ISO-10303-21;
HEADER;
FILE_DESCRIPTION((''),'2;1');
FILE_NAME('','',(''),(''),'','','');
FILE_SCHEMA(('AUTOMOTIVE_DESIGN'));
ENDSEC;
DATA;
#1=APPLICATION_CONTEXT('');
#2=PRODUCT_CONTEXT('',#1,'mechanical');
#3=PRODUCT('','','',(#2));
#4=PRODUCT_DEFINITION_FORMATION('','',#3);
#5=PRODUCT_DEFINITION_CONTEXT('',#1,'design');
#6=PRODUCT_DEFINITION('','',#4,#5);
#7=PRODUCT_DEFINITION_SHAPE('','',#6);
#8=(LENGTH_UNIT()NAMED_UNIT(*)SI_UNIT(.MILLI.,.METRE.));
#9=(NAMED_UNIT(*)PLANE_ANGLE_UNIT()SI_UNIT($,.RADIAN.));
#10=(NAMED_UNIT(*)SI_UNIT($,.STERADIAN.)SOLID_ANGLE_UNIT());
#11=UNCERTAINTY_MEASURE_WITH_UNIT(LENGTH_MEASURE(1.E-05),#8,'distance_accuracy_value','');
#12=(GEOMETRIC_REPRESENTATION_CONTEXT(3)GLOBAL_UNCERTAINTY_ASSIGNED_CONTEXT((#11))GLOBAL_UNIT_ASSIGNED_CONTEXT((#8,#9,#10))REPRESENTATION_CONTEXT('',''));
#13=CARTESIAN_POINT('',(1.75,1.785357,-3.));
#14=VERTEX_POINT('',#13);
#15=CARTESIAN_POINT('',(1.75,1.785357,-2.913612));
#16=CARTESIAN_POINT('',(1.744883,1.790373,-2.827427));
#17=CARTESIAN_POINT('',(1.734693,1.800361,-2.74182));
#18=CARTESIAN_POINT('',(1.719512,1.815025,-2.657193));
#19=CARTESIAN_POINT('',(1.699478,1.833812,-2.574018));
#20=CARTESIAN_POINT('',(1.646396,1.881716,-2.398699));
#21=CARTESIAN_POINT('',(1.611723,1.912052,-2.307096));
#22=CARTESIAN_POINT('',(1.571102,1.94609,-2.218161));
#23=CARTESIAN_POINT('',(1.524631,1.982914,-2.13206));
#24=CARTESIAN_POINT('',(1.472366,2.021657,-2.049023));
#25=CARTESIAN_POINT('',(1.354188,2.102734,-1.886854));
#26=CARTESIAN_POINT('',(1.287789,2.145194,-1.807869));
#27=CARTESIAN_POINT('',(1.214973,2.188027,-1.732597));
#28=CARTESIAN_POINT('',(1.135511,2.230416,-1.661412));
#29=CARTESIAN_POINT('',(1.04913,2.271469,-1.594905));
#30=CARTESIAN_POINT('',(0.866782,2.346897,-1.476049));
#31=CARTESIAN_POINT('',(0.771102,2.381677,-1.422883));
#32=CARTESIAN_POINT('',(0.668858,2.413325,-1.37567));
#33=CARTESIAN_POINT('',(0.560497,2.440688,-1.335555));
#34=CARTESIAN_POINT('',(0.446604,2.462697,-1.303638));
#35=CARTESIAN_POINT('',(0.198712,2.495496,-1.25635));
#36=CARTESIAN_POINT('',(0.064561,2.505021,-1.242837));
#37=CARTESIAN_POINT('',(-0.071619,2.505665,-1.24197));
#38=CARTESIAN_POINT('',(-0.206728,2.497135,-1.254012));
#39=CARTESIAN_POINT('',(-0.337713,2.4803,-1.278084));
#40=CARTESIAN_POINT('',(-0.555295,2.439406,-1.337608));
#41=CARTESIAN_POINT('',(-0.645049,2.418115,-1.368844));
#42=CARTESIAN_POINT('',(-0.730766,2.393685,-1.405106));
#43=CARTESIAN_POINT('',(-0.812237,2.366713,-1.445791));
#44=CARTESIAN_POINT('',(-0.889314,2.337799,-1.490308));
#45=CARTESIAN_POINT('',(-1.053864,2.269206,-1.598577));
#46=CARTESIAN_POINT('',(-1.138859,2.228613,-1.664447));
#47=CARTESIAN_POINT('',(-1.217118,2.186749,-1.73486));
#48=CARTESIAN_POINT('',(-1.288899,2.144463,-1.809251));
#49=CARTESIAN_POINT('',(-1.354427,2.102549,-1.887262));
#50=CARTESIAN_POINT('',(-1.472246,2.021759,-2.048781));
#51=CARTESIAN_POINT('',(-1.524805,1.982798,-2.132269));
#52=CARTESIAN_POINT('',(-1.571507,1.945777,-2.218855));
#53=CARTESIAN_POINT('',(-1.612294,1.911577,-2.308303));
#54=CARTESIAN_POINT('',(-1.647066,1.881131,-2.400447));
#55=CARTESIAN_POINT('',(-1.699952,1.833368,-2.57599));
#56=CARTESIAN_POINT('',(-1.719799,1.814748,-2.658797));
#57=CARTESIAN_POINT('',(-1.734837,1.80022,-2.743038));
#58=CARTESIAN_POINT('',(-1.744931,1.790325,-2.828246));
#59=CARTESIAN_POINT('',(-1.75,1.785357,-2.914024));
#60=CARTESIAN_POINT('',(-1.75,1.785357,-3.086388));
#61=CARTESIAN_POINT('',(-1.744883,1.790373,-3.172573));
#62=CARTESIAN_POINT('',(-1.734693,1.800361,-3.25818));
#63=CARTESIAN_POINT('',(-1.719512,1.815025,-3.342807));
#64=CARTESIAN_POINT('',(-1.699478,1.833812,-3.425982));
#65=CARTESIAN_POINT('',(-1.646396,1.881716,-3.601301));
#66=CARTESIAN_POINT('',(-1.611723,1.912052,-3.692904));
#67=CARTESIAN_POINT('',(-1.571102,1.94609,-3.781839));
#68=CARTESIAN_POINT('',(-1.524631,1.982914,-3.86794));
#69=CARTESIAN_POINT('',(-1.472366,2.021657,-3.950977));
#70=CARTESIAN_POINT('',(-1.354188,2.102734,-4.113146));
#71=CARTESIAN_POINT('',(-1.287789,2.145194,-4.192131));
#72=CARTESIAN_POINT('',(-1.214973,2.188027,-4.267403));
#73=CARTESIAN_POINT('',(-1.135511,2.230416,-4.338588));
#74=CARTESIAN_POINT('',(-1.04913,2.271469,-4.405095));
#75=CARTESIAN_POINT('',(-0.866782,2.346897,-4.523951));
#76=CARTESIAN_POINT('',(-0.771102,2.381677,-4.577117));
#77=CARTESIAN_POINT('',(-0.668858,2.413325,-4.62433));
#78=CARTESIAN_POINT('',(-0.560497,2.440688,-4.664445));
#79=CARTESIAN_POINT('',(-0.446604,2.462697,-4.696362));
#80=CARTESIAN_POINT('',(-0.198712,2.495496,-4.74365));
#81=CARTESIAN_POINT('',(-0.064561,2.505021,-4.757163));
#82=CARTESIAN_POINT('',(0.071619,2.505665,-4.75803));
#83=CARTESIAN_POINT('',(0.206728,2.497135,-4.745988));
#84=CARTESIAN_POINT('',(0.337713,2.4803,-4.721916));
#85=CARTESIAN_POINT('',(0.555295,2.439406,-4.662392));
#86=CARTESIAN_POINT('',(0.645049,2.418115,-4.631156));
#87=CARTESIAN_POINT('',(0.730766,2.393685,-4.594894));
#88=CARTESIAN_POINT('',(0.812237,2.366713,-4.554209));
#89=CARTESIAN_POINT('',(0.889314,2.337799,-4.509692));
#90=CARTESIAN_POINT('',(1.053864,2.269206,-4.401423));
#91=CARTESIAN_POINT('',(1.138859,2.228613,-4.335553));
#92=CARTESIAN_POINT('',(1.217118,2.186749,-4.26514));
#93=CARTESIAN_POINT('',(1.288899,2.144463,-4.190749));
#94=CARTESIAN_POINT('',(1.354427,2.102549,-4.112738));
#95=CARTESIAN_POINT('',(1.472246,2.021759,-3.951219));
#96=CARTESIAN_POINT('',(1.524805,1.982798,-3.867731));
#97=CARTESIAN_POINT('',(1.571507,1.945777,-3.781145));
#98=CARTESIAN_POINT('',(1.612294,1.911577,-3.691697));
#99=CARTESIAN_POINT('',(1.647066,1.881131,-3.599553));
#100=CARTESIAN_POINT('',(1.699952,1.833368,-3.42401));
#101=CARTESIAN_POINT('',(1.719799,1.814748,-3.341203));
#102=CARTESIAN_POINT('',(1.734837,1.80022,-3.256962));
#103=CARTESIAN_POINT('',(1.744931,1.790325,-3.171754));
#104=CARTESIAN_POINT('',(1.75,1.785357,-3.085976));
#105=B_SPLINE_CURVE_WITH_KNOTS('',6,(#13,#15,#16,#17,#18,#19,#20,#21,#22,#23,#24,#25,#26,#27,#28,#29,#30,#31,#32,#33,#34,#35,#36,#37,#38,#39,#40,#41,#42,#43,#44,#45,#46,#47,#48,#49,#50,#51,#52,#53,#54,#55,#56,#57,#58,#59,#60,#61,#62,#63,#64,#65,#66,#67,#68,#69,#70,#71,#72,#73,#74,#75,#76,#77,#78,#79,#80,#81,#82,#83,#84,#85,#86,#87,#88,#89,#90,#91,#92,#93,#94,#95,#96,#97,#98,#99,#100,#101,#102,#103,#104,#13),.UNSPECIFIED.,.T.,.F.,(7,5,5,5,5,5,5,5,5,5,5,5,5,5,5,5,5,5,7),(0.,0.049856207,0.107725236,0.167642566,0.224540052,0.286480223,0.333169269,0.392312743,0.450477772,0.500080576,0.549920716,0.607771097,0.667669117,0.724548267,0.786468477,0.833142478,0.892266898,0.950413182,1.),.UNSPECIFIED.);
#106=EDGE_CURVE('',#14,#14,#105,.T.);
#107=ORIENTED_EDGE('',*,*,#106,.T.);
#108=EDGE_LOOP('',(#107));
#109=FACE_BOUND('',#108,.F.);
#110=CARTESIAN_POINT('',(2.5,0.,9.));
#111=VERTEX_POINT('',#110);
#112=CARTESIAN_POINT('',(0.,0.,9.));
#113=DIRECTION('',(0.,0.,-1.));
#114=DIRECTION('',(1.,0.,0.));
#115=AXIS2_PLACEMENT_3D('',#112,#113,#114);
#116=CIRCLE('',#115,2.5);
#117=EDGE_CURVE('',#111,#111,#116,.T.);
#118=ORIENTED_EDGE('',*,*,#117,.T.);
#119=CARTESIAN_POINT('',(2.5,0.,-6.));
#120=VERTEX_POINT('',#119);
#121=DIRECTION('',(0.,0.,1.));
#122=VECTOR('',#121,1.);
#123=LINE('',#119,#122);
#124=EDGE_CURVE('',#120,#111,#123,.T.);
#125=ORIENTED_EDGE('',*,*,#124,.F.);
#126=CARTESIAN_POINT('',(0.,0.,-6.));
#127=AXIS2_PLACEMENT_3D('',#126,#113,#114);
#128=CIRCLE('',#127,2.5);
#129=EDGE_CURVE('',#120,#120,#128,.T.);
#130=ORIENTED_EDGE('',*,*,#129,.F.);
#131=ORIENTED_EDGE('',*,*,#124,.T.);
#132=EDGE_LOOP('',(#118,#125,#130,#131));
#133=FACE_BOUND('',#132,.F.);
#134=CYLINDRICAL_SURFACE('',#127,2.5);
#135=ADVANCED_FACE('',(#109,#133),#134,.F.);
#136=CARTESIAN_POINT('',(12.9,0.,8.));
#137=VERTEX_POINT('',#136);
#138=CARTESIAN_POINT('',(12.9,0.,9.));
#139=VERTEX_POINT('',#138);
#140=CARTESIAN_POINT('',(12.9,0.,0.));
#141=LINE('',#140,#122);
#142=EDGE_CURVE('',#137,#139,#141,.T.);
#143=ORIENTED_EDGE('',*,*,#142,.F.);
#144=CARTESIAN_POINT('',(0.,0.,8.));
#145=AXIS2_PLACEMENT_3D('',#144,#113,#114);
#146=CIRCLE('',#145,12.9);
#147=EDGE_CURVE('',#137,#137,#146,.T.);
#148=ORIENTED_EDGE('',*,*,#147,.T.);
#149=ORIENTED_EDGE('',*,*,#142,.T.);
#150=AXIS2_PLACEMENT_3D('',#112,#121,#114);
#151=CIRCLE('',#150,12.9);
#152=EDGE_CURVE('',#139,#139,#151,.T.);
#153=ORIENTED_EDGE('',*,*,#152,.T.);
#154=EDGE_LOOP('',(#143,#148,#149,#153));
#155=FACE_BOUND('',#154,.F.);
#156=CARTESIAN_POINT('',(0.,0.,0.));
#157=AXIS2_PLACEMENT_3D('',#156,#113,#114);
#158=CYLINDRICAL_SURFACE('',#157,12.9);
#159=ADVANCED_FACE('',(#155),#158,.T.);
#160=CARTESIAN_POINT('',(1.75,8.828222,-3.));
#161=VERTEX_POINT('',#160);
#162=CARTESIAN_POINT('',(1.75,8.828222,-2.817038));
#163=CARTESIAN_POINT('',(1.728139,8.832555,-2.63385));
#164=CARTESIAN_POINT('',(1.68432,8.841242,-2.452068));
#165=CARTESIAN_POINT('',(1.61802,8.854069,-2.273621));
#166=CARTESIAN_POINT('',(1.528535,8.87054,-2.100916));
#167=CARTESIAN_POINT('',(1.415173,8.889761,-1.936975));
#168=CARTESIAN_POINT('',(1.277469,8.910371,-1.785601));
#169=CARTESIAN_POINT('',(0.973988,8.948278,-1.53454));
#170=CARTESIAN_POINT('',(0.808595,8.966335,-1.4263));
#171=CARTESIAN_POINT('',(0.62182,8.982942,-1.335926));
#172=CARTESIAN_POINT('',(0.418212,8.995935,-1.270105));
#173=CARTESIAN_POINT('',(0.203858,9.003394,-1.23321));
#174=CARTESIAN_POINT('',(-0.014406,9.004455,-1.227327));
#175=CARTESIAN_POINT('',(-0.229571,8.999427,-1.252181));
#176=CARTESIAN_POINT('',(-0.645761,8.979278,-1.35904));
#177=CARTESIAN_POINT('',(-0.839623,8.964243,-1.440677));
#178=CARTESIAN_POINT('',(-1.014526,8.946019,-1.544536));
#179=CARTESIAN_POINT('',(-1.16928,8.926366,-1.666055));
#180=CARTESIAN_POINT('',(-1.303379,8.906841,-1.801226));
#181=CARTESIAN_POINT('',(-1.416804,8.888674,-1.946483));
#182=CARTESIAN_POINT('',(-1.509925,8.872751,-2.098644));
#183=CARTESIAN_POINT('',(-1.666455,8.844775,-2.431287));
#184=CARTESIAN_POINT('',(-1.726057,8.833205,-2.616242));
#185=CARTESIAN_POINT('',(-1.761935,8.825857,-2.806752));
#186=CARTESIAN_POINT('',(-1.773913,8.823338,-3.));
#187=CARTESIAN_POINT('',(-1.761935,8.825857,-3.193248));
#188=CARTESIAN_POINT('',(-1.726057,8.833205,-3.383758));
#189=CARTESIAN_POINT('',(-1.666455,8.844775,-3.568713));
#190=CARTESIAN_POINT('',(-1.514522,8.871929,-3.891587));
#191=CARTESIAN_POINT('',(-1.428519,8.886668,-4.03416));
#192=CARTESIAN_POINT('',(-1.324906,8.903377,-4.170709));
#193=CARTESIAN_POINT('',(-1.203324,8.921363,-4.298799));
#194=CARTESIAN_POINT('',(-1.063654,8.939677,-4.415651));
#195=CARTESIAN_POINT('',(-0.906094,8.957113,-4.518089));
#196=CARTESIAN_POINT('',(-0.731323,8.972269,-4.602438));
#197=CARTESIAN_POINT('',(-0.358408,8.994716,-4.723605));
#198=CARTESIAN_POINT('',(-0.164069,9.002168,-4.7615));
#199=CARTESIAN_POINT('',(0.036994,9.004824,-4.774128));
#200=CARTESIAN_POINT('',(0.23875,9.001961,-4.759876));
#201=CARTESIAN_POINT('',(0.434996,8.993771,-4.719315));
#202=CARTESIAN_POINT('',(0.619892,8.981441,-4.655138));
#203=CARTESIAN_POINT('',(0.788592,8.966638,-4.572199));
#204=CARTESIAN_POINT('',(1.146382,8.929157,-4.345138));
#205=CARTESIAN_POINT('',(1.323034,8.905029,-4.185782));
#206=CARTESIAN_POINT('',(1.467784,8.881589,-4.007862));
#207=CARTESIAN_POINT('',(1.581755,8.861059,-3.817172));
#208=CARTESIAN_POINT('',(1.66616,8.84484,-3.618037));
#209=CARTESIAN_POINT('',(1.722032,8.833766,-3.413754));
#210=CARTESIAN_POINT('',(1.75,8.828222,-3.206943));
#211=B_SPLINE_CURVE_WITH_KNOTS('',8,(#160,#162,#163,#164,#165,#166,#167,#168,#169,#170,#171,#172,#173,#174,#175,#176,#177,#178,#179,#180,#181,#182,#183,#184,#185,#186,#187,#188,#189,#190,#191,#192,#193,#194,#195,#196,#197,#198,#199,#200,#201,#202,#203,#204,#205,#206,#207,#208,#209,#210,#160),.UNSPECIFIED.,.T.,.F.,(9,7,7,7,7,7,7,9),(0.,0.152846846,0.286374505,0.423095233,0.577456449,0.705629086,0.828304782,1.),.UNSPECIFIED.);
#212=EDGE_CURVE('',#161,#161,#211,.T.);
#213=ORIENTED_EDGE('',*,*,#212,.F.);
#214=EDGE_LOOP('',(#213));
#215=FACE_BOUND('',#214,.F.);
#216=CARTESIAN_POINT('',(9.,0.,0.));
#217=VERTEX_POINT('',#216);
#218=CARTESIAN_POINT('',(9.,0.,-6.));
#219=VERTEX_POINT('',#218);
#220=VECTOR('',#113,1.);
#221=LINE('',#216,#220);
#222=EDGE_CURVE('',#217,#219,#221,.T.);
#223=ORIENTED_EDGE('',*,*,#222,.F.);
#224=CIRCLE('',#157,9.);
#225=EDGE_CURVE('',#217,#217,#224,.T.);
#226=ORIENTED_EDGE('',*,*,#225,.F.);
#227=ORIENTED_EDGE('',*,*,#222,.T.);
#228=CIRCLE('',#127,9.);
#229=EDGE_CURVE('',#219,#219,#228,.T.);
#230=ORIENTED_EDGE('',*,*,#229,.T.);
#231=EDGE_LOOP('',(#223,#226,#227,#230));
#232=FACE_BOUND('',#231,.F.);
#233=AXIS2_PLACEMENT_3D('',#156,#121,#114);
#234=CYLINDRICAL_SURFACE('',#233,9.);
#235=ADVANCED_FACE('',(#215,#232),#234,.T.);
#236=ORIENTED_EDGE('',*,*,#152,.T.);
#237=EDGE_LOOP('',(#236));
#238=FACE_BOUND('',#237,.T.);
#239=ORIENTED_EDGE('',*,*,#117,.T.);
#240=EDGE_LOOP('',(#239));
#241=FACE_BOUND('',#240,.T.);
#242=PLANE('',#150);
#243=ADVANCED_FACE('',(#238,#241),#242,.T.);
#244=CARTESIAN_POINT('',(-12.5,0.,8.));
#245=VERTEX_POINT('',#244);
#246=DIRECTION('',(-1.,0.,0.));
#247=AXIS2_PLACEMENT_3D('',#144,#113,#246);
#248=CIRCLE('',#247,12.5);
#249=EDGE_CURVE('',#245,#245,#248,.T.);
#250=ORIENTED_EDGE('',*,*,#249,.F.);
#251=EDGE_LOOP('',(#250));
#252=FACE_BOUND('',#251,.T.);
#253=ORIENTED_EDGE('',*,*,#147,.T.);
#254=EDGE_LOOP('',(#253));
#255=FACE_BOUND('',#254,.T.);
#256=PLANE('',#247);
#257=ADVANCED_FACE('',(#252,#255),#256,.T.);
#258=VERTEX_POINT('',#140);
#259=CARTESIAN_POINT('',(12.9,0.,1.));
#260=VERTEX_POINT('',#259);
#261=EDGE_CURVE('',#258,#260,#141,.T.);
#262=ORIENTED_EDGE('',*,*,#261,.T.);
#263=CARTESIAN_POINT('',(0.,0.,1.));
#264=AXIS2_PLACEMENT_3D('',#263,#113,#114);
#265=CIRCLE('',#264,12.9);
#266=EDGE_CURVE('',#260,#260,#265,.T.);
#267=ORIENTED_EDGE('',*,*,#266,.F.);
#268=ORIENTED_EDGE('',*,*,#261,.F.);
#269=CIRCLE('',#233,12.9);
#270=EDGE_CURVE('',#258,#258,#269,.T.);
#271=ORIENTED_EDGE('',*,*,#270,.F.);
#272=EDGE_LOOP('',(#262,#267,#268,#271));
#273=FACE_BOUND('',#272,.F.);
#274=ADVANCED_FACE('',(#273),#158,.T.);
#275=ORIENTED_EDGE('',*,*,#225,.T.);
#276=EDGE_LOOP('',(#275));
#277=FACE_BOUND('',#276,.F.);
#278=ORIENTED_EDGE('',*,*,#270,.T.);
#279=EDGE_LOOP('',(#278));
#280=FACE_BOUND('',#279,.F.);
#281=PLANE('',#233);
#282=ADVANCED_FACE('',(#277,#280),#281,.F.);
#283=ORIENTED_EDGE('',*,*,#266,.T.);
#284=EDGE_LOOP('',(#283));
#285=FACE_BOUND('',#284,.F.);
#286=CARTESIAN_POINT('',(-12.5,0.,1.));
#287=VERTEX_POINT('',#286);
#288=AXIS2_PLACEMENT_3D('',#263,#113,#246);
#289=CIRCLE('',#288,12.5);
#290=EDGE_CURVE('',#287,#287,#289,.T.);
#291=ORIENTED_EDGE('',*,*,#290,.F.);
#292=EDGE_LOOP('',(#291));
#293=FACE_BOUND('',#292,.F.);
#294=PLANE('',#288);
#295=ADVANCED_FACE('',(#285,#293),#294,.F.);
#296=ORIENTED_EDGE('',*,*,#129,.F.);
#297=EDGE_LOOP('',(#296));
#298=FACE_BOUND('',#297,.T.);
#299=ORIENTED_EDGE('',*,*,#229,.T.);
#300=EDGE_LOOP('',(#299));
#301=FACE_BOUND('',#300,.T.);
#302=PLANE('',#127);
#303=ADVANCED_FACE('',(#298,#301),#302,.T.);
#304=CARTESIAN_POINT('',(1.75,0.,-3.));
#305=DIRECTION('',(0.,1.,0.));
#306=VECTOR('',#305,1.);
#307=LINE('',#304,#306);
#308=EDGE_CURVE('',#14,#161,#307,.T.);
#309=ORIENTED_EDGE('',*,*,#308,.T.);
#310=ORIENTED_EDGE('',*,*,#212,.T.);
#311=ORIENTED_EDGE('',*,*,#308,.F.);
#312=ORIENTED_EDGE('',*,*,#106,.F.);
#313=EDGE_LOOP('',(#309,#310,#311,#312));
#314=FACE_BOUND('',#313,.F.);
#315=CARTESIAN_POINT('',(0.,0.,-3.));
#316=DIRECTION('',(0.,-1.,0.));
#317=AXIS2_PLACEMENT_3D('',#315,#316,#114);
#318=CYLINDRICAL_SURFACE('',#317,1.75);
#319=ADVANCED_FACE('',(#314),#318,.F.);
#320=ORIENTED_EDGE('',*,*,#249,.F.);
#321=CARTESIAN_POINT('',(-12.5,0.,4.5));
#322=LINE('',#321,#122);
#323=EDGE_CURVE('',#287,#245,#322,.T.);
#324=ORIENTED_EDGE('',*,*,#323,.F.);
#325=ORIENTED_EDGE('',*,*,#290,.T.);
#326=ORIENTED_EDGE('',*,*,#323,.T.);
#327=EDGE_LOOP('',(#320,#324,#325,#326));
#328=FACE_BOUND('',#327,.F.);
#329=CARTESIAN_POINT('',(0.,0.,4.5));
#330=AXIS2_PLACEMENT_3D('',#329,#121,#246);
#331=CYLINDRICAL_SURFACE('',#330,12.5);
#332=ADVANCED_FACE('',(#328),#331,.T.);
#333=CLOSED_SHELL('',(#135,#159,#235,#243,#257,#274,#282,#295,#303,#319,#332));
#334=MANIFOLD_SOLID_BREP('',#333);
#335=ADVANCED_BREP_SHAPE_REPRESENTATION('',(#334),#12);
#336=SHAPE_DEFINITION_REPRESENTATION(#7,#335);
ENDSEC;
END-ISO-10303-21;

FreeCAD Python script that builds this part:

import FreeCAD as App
import Part
import Sketcher


def add_polygon(sketch, points):
    """Adds a closed chain of lines whose ends are joined by coincident constraints."""
    first, n = sketch.GeometryCount, len(points)
    for a, b in zip(points, points[1:] + points[:1]):
        sketch.addGeometry(Part.LineSegment(App.Vector(*a, 0), App.Vector(*b, 0)), False)
    for i in range(n):
        sketch.addConstraint(Sketcher.Constraint("Coincident", first + i, 2, first + (i + 1) % n, 1))

doc = App.newDocument("Part")
body = doc.addObject("PartDesign::Body", "Body")

# Sketch on XY plane
sketch1 = body.newObject("Sketcher::SketchObject", "Sketch")
sketch1.AttachmentSupport = (doc.getObject("XY_Plane"), [""])
sketch1.MapMode = "FlatFace"
sketch1.addGeometry(Part.Circle(App.Vector(0, 0, 0), App.Vector(0, 0, 1), 13), False)
sketch1.addConstraint(Sketcher.Constraint("Coincident", 0, 3, -1, 1))
sketch1.addConstraint(Sketcher.Constraint("Diameter", 0, 25.8))
pad1 = body.newObject("PartDesign::Pad", "Pad")
pad1.Profile = sketch1
pad1.Length = 9

# Sketch on XY plane
sketch2 = body.newObject("Sketcher::SketchObject", "Sketch001")
sketch2.AttachmentSupport = (doc.getObject("XY_Plane"), [""])
sketch2.MapMode = "FlatFace"
sketch2.addGeometry(Part.Circle(App.Vector(0, 0, 0), App.Vector(0, 0, 1), 9), False)
sketch2.addConstraint(Sketcher.Constraint("Coincident", 0, 3, -1, 1))
sketch2.addConstraint(Sketcher.Constraint("Diameter", 0, 18.0))
pad2 = body.newObject("PartDesign::Pad", "Pad001")
pad2.Profile = sketch2
pad2.Length = 6
pad2.Reversed = True

# Sketch on XY plane
sketch3 = body.newObject("Sketcher::SketchObject", "Sketch002")
sketch3.AttachmentSupport = (doc.getObject("XY_Plane"), [""])
sketch3.MapMode = "FlatFace"
sketch3.AttachmentOffset = App.Placement(App.Vector(0, 0, -6), App.Rotation())
sketch3.addGeometry(Part.Circle(App.Vector(0, 0, 0), App.Vector(0, 0, 1), 2.5), False)
sketch3.addConstraint(Sketcher.Constraint("Coincident", 0, 3, -1, 1))
sketch3.addConstraint(Sketcher.Constraint("Diameter", 0, 5.0))
pocket1 = body.newObject("PartDesign::Pocket", "Pocket")
pocket1.Profile = sketch3
pocket1.Length = 25
pocket1.Reversed = True

# Sketch on XZ plane
sketch4 = body.newObject("Sketcher::SketchObject", "Sketch003")
sketch4.AttachmentSupport = (doc.getObject("XZ_Plane"), [""])
sketch4.MapMode = "FlatFace"
add_polygon(sketch4, [(-14.1, 8), (-14.1, 1), (-12.5, 1), (-12.5, 8)])  # lines 0-3
sketch4.addConstraint(Sketcher.Constraint("Vertical", 0))
sketch4.addConstraint(Sketcher.Constraint("Horizontal", 1))
sketch4.addConstraint(Sketcher.Constraint("Vertical", 2))
sketch4.addConstraint(Sketcher.Constraint("Horizontal", 3))
sketch4.addConstraint(Sketcher.Constraint("DistanceY", 0, 2, 0, 1, 7.0))
sketch4.addConstraint(Sketcher.Constraint("DistanceY", -1, 1, 0, 2, 1.0))
sketch4.addConstraint(Sketcher.Constraint("DistanceX", 1, 2, -1, 1, 12.5))
sketch4.addConstraint(Sketcher.Constraint("DistanceX", 1, 1, 1, 2, 1.571994))
groove = body.newObject("PartDesign::Groove", "Groove")
groove.Profile = sketch4
groove.ReferenceAxis = (sketch4, ["V_Axis"])
groove.Angle = 360

# Sketch on XZ plane
sketch5 = body.newObject("Sketcher::SketchObject", "Sketch004")
sketch5.AttachmentSupport = (doc.getObject("XZ_Plane"), [""])
sketch5.MapMode = "FlatFace"
sketch5.addGeometry(Part.Circle(App.Vector(0, -3, 0), App.Vector(0, 0, 1), 1.8), False)
sketch5.addConstraint(Sketcher.Constraint("PointOnObject", 0, 3, -2))
sketch5.addConstraint(Sketcher.Constraint("Diameter", 0, 3.5))
sketch5.addConstraint(Sketcher.Constraint("DistanceY", 0, 3, -1, 1, 3.0))
pocket2 = body.newObject("PartDesign::Pocket", "Pocket001")
pocket2.Profile = sketch5
pocket2.Length = 25

doc.recompute()
